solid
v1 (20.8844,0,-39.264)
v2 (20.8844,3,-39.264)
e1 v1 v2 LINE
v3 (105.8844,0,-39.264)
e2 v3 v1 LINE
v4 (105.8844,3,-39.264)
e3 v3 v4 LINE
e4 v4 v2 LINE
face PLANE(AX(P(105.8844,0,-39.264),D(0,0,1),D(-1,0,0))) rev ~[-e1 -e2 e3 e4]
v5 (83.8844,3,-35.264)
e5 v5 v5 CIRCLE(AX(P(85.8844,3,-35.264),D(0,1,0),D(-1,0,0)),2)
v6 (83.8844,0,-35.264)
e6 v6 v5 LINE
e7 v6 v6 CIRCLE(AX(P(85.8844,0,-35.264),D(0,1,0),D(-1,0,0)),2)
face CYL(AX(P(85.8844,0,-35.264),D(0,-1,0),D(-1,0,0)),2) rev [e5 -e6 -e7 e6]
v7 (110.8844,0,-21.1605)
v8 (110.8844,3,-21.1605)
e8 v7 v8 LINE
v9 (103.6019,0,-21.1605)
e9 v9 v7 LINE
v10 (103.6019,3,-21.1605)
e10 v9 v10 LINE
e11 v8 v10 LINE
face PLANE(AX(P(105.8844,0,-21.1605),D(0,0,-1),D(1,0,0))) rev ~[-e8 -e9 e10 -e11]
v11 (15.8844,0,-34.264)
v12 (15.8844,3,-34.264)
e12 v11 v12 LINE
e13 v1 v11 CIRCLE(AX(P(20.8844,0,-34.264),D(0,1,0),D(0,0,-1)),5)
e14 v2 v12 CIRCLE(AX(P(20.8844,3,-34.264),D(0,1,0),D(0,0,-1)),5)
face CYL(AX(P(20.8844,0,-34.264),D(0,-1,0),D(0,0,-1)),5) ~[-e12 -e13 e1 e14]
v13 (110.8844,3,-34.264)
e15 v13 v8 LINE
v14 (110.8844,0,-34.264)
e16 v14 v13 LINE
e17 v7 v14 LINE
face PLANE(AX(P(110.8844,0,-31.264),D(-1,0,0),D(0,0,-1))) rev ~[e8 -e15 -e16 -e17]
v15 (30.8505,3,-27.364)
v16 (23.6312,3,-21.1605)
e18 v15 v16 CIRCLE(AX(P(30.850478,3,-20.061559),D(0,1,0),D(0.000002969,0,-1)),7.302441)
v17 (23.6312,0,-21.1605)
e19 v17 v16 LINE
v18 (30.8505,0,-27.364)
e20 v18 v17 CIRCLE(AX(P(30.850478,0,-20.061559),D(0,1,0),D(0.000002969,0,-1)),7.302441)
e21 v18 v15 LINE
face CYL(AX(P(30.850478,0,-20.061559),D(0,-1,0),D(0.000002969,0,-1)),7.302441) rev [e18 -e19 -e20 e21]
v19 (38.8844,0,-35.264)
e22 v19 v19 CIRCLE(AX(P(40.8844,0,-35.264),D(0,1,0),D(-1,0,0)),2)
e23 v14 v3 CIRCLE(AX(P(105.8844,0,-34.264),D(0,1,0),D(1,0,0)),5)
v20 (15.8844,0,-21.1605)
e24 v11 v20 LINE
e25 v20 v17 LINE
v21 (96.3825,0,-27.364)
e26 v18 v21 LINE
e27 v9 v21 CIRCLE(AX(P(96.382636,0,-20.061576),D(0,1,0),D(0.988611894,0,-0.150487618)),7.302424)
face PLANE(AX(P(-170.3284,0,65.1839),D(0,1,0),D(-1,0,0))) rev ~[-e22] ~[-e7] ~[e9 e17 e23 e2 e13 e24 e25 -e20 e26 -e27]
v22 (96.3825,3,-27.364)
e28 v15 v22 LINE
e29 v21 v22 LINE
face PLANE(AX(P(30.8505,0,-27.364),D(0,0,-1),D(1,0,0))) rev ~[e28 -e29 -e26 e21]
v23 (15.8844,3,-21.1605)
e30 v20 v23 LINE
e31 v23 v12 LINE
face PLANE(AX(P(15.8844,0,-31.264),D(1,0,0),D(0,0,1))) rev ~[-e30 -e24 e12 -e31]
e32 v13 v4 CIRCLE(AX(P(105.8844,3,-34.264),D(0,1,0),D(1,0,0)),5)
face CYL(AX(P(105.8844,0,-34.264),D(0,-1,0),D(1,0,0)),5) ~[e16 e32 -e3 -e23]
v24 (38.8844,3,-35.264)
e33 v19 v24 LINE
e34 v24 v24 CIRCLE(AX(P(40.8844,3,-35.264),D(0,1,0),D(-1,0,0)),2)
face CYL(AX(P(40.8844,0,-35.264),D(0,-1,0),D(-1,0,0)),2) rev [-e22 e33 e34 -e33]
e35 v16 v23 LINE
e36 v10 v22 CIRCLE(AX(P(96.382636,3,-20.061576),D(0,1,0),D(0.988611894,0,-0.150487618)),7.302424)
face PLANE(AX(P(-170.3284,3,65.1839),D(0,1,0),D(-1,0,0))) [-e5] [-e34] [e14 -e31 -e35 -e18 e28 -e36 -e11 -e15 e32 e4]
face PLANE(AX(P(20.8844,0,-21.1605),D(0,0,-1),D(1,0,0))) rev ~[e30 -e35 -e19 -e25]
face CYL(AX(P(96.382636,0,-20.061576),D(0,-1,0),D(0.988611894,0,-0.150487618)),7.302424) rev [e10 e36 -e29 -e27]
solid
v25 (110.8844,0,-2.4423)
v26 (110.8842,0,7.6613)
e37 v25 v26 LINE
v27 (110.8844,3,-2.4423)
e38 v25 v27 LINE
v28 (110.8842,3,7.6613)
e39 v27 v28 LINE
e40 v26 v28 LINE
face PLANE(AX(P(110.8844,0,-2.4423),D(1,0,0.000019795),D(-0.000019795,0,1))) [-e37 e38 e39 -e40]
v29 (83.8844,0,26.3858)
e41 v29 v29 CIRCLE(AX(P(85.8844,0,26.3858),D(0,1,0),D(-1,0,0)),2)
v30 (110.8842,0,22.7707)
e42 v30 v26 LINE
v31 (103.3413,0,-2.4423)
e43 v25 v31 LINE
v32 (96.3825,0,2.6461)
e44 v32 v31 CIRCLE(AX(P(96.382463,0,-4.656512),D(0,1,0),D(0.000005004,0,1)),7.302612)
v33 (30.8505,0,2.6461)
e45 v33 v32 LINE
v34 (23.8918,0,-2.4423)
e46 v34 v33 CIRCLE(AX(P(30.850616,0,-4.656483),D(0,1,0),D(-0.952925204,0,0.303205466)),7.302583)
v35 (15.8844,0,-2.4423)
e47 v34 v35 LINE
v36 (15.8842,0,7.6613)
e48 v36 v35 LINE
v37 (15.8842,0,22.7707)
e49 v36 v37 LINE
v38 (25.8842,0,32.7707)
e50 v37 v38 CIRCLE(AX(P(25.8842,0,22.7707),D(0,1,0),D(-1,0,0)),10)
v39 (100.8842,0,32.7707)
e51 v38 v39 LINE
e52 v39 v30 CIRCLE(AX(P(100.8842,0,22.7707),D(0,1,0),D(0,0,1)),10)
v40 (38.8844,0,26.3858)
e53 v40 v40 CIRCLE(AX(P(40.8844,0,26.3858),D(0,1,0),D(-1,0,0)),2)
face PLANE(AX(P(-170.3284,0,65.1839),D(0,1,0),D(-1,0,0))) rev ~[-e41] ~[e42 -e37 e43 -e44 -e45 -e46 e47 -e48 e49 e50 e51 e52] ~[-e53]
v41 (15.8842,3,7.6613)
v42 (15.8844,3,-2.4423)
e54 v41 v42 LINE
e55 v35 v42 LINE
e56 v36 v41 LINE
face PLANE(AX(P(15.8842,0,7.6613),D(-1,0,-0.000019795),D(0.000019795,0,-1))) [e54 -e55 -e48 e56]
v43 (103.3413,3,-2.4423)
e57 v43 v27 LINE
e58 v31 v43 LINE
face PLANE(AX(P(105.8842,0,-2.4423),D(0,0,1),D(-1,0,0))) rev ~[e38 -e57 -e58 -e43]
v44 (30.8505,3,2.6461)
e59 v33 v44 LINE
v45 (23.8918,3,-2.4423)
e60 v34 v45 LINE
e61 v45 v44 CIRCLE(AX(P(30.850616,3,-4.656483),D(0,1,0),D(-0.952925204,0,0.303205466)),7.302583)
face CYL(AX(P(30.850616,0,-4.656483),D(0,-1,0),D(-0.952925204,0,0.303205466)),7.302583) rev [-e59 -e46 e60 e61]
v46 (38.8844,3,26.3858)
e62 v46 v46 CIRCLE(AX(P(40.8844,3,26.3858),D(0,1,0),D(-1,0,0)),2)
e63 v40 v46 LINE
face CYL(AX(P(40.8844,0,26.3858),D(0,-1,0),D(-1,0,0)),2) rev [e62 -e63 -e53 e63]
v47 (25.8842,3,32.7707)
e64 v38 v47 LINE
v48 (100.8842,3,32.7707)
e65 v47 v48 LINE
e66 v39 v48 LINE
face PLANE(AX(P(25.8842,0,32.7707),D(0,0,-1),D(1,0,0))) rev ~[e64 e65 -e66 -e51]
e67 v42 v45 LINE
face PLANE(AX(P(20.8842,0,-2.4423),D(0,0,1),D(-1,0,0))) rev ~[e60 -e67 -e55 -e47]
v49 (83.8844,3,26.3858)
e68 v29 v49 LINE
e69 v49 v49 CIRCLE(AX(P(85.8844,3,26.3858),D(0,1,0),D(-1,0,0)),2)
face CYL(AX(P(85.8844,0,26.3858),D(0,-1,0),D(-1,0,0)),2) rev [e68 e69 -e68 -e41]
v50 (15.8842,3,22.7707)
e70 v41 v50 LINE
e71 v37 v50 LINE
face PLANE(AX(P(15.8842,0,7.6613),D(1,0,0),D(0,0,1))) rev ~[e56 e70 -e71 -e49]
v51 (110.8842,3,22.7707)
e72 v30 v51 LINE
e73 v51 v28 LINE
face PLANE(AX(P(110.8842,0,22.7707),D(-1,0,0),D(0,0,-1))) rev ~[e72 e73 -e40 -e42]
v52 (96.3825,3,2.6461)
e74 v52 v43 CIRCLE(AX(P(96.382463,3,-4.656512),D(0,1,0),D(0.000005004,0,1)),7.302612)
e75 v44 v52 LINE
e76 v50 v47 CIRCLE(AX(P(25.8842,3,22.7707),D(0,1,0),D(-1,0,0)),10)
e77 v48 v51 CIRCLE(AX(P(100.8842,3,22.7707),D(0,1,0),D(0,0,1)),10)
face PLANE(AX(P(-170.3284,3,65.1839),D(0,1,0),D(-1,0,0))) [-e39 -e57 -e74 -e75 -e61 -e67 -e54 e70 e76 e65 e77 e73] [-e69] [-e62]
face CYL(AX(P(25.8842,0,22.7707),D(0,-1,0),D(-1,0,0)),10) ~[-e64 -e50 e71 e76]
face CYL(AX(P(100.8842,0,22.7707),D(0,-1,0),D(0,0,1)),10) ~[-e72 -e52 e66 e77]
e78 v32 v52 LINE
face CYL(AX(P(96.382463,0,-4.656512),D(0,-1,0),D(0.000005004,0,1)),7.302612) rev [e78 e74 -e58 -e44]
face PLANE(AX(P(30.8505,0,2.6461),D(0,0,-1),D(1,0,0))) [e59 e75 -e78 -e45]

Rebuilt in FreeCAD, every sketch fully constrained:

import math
import FreeCAD as App
import Part
import Sketcher
from FreeCAD import Vector
Q = App.Units.Quantity

doc = App.newDocument("Part")
body = doc.addObject("PartDesign::Body", "Body")
body.AllowCompound = True

sketch1 = body.newObject("Sketcher::SketchObject", "Sketch")
sketch1.AttachmentSupport = (doc.getObject("XZ_Plane"), [""])
sketch1.MapMode = "FlatFace"
sketch1.addGeometry([
    Part.ArcOfCircle(Part.Circle(Vector(30.9, -4.7, 0), Vector(0, 0, 1), 7.3), math.radians(90), math.radians(162)),
    Part.LineSegment(Vector(23.9, -2.4, 0), Vector(15.9, -2.4, 0)),
    Part.LineSegment(Vector(15.9, -2.4, 0), Vector(15.9, 7.7, 0)),
    Part.LineSegment(Vector(15.9, 7.7, 0), Vector(15.9, 22.8, 0)),
    Part.ArcOfCircle(Part.Circle(Vector(25.9, 22.8, 0), Vector(0, 0, 1), 10), math.radians(90), math.radians(180)),
    Part.LineSegment(Vector(25.9, 32.8, 0), Vector(100.9, 32.8, 0)),
    Part.ArcOfCircle(Part.Circle(Vector(100.9, 22.8, 0), Vector(0, 0, 1), 10), math.radians(0), math.radians(90)),
    Part.LineSegment(Vector(110.9, 22.8, 0), Vector(110.9, 7.7, 0)),
    Part.LineSegment(Vector(110.9, 7.7, 0), Vector(110.9, -2.4, 0)),
    Part.LineSegment(Vector(110.9, -2.4, 0), Vector(103.3, -2.4, 0)),
    Part.ArcOfCircle(Part.Circle(Vector(96.4, -4.7, 0), Vector(0, 0, 1), 7.3), math.radians(18), math.radians(90)),
    Part.LineSegment(Vector(96.4, 2.6, 0), Vector(30.9, 2.6, 0)),
    Part.Circle(Vector(85.9, 26.4, 0), Vector(0, 0, 1), 2),
    Part.Circle(Vector(40.9, 26.4, 0), Vector(0, 0, 1), 2),
    Part.ArcOfCircle(Part.Circle(Vector(96.4, -20.1, 0), Vector(0, 0, 1), 7.3), math.radians(-90), math.radians(-9)),
    Part.LineSegment(Vector(103.6, -21.2, 0), Vector(110.9, -21.2, 0)),
    Part.LineSegment(Vector(110.9, -21.2, 0), Vector(110.9, -34.3, 0)),
    Part.ArcOfCircle(Part.Circle(Vector(105.9, -34.3, 0), Vector(0, 0, 1), 5), math.radians(-90), math.radians(0)),
    Part.LineSegment(Vector(105.9, -39.3, 0), Vector(20.9, -39.3, 0)),
    Part.ArcOfCircle(Part.Circle(Vector(20.9, -34.3, 0), Vector(0, 0, 1), 5), math.radians(180), math.radians(270)),
    Part.LineSegment(Vector(15.9, -34.3, 0), Vector(15.9, -21.2, 0)),
    Part.LineSegment(Vector(15.9, -21.2, 0), Vector(23.6, -21.2, 0)),
    Part.ArcOfCircle(Part.Circle(Vector(30.9, -20.1, 0), Vector(0, 0, 1), 7.3), math.radians(-171), math.radians(-90)),
    Part.LineSegment(Vector(30.9, -27.4, 0), Vector(96.4, -27.4, 0)),
    Part.Circle(Vector(85.9, -35.3, 0), Vector(0, 0, 1), 2),
    Part.Circle(Vector(40.9, -35.3, 0), Vector(0, 0, 1), 2),
], False)
sketch1.addConstraint([
    Sketcher.Constraint("Coincident", 0, 2, 1, 1),
    Sketcher.Constraint("Coincident", 1, 2, 2, 1),
    Sketcher.Constraint("Coincident", 2, 2, 3, 1),
    Sketcher.Constraint("Tangent", 3, 2, 4, 2),
    Sketcher.Constraint("Tangent", 4, 1, 5, 1),
    Sketcher.Constraint("Tangent", 5, 2, 6, 2),
    Sketcher.Constraint("Tangent", 6, 1, 7, 1),
    Sketcher.Constraint("Coincident", 7, 2, 8, 1),
    Sketcher.Constraint("Coincident", 8, 2, 9, 1),
    Sketcher.Constraint("Coincident", 9, 2, 10, 1),
    Sketcher.Constraint("Tangent", 10, 2, 11, 1),
    Sketcher.Constraint("Tangent", 11, 2, 0, 1),
    Sketcher.Constraint("Coincident", 14, 2, 15, 1),
    Sketcher.Constraint("Coincident", 15, 2, 16, 1),
    Sketcher.Constraint("Tangent", 16, 2, 17, 2),
    Sketcher.Constraint("Tangent", 17, 1, 18, 1),
    Sketcher.Constraint("Tangent", 18, 2, 19, 2),
    Sketcher.Constraint("Tangent", 19, 1, 20, 1),
    Sketcher.Constraint("Coincident", 20, 2, 21, 1),
    Sketcher.Constraint("Coincident", 21, 2, 22, 1),
    Sketcher.Constraint("Tangent", 22, 2, 23, 1),
    Sketcher.Constraint("Tangent", 23, 2, 14, 1),
    Sketcher.Constraint("Horizontal", 1),
    Sketcher.Constraint("Vertical", 2),
    Sketcher.Constraint("Vertical", 3),
    Sketcher.Constraint("Horizontal", 5),
    Sketcher.Constraint("Vertical", 7),
    Sketcher.Constraint("Vertical", 8),
    Sketcher.Constraint("Horizontal", 9),
    Sketcher.Constraint("Horizontal", 11),
    Sketcher.Constraint("Horizontal", 15),
    Sketcher.Constraint("Vertical", 16),
    Sketcher.Constraint("Horizontal", 18),
    Sketcher.Constraint("Vertical", 20),
    Sketcher.Constraint("Horizontal", 21),
    Sketcher.Constraint("Horizontal", 23),
    Sketcher.Constraint("Equal", 4, 6),
    Sketcher.Constraint("Equal", 0, 10),
    Sketcher.Constraint("Equal", 12, 13),
    Sketcher.Constraint("Equal", 10, 14),
    Sketcher.Constraint("Equal", 17, 19),
    Sketcher.Constraint("Equal", 14, 22),
    Sketcher.Constraint("Equal", 13, 24),
    Sketcher.Constraint("Equal", 24, 25),
    Sketcher.Constraint("Horizontal", 12, 3, 13, 3),
    Sketcher.Constraint("Horizontal", 24, 3, 25, 3),
    Sketcher.Constraint("Horizontal", 2, 2, 7, 2),
    Sketcher.Constraint("Horizontal", 1, 2, 8, 2),
    Sketcher.Constraint("Horizontal", 15, 2, 20, 2),
    Sketcher.Constraint("Vertical", 10, 3, 14, 3),
    Sketcher.Constraint("Vertical", 0, 3, 22, 3),
    Sketcher.Constraint("Vertical", 12, 3, 24, 3),
    Sketcher.Constraint("Vertical", 13, 3, 25, 3),
    Sketcher.Constraint("Vertical", 8, 2, 15, 2),
    Sketcher.Constraint("Vertical", 3, 2, 19, 1),
    Sketcher.Constraint("DistanceX", 11, 2, 11, 1, Q("2.58 in")),
    Sketcher.Constraint("Radius", 0, Q("0.2875 in")),
    Sketcher.Constraint("Radius", 4, Q("0.3937 in")),
    Sketcher.Constraint("Diameter", 12, Q("4 mm")),
    Sketcher.Constraint("DistanceX", 21, 1, 21, 2, Q("0.305 in")),
    Sketcher.Constraint("Radius", 17, Q("5 mm")),
    Sketcher.Constraint("DistanceY", 14, 3, 5, 2, Q("2.08 in")),
    Sketcher.Constraint("DistanceX", 0, 2, 13, 3, Q("0.669 in")),
    Sketcher.Constraint("DistanceY", 18, 2, 22, 3, Q("0.756 in")),
    Sketcher.Constraint("DistanceX", 1, 2, 1, 1, Q("8.0074 mm")),
    Sketcher.Constraint("DistanceX", 5, 1, 5, 2, Q("75 mm")),
    Sketcher.Constraint("DistanceX", 9, 2, 9, 1, Q("7.543 mm")),
    Sketcher.Constraint("DistanceY", 2, 1, 2, 2, Q("10.1036 mm")),
    Sketcher.Constraint("DistanceY", 3, 1, 3, 2, Q("15.1094 mm")),
    Sketcher.Constraint("DistanceY", -1, 1, 12, 3, Q("1.0388 in")),
    Sketcher.Constraint("DistanceY", 14, 2, -1, 1, Q("0.8331 in")),
    Sketcher.Constraint("DistanceX", 12, 3, 10, 3, Q("0.4133 in")),
    Sketcher.Constraint("DistanceX", -1, 1, 0, 3, Q("30.8505 mm")),
    Sketcher.Constraint("DistanceY", 24, 3, -1, 1, Q("35.264 mm")),
])
pad1 = body.newObject("PartDesign::Pad", "Pad")
pad1.Profile = sketch1
pad1.Length = Q("0.1181102 in")
pad1.Reversed = True

doc.recompute()
